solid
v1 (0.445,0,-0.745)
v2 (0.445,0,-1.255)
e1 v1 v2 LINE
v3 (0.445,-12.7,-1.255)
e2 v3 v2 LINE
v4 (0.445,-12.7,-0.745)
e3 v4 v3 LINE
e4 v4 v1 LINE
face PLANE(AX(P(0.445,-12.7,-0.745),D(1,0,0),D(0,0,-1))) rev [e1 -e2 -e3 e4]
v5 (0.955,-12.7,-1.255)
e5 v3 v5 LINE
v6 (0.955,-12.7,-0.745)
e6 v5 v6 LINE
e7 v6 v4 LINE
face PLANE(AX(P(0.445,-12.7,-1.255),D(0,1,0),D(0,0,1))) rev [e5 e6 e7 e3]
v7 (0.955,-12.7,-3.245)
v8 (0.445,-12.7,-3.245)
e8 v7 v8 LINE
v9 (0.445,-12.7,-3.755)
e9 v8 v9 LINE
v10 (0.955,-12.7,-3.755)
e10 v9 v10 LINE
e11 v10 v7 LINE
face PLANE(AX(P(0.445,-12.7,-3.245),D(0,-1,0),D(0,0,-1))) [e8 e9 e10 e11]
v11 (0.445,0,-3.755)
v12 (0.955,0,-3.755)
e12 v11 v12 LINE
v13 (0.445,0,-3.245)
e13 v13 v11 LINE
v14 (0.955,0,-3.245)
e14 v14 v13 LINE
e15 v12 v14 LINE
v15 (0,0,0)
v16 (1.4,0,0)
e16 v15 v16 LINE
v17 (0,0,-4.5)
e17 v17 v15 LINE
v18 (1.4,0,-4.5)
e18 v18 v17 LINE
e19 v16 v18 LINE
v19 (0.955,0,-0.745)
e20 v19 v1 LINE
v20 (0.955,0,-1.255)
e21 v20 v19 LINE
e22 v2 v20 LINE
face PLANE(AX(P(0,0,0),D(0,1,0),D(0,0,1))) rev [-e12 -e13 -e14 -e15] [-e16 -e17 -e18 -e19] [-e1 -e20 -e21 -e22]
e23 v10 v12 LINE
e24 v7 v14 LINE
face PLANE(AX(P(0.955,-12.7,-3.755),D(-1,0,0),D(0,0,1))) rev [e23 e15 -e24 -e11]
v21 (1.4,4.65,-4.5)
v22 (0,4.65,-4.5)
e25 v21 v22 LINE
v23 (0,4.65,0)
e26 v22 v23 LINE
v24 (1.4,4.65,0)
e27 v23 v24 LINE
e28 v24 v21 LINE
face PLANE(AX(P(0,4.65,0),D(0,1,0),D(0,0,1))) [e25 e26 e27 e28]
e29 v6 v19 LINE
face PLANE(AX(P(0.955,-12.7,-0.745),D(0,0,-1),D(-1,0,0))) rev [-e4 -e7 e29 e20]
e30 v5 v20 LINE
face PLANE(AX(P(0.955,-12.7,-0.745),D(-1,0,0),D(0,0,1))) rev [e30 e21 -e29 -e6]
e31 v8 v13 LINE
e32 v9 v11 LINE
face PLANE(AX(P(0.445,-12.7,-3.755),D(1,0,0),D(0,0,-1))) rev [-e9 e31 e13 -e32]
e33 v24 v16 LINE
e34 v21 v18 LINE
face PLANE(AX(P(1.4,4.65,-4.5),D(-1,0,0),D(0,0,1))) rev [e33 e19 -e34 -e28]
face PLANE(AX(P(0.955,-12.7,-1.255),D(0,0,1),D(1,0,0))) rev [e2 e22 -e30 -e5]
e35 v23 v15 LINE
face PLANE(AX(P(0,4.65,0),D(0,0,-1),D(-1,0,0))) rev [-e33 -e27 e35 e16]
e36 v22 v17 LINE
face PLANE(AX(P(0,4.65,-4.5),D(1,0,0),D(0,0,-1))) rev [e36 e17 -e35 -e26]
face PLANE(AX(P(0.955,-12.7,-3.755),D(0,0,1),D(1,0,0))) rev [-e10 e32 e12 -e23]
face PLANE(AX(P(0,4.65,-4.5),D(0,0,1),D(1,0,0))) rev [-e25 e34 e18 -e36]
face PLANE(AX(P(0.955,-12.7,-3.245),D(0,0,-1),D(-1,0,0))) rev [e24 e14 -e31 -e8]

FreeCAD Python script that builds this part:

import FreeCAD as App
import Part
import Sketcher
from FreeCAD import Vector

doc = App.newDocument("Part")
body = doc.addObject("PartDesign::Body", "Body")

# Sketch on XZ plane
sketch1 = doc.addObject("Sketcher::SketchObject", "Sketch")
body.addObject(sketch1)
sketch1.AttachmentSupport = (doc.XZ_Plane, [""])
sketch1.MapMode = "FlatFace"
sketch1.addGeometry([
    Part.LineSegment(Vector(0, -4.5, 0), Vector(0, 0, 0)),
    Part.LineSegment(Vector(0, 0, 0), Vector(1.4, 0, 0)),
    Part.LineSegment(Vector(1.4, 0, 0), Vector(1.4, -4.5, 0)),
    Part.LineSegment(Vector(1.4, -4.5, 0), Vector(0, -4.5, 0)),
], False)
sketch1.addConstraint([
    Sketcher.Constraint("Coincident", 0, 2, 1, 1),
    Sketcher.Constraint("Coincident", 1, 2, 2, 1),
    Sketcher.Constraint("Coincident", 2, 2, 3, 1),
    Sketcher.Constraint("Coincident", 3, 2, 0, 1),
    Sketcher.Constraint("Vertical", 0),
    Sketcher.Constraint("Horizontal", 1),
    Sketcher.Constraint("Vertical", 2),
    Sketcher.Constraint("Horizontal", 3),
    Sketcher.Constraint("Coincident", 0, 2, -1, 1),
    Sketcher.Constraint("DistanceX", 1, 1, 1, 2, 1.4),
    Sketcher.Constraint("DistanceY", 0, 1, 0, 2, 4.5),
])
pad1 = doc.addObject("PartDesign::Pad", "Pad")
body.addObject(pad1)
pad1.Profile = sketch1
pad1.Length = 4.65
pad1.Reversed = True

# Sketch on XZ plane
sketch2 = doc.addObject("Sketcher::SketchObject", "Sketch001")
body.addObject(sketch2)
sketch2.AttachmentSupport = (doc.XZ_Plane, [""])
sketch2.MapMode = "FlatFace"
sketch2.addGeometry([
    Part.LineSegment(Vector(0.445, -0.745, 0), Vector(0.445, -1.255, 0)),  # 0
    Part.LineSegment(Vector(0.445, -1.255, 0), Vector(0.955, -1.255, 0)),  # 1
    Part.LineSegment(Vector(0.955, -1.255, 0), Vector(0.955, -0.745, 0)),  # 2
    Part.LineSegment(Vector(0.955, -0.745, 0), Vector(0.445, -0.745, 0)),  # 3
    Part.LineSegment(Vector(0.445, -3.245, 0), Vector(0.445, -3.755, 0)),  # 4
    Part.LineSegment(Vector(0.445, -3.755, 0), Vector(0.955, -3.755, 0)),  # 5
    Part.LineSegment(Vector(0.955, -3.755, 0), Vector(0.955, -3.245, 0)),  # 6
    Part.LineSegment(Vector(0.955, -3.245, 0), Vector(0.445, -3.245, 0)),  # 7
], False)
sketch2.addConstraint([
    Sketcher.Constraint("Coincident", 0, 2, 1, 1),
    Sketcher.Constraint("Coincident", 1, 2, 2, 1),
    Sketcher.Constraint("Coincident", 2, 2, 3, 1),
    Sketcher.Constraint("Coincident", 3, 2, 0, 1),
    Sketcher.Constraint("Coincident", 4, 2, 5, 1),
    Sketcher.Constraint("Coincident", 5, 2, 6, 1),
    Sketcher.Constraint("Coincident", 6, 2, 7, 1),
    Sketcher.Constraint("Coincident", 7, 2, 4, 1),
    Sketcher.Constraint("Vertical", 0),
    Sketcher.Constraint("Horizontal", 1),
    Sketcher.Constraint("Vertical", 2),
    Sketcher.Constraint("Horizontal", 3),
    Sketcher.Constraint("Vertical", 4),
    Sketcher.Constraint("Horizontal", 5),
    Sketcher.Constraint("Vertical", 6),
    Sketcher.Constraint("Horizontal", 7),
    Sketcher.Constraint("Vertical", 3, 2, 4, 2),
    Sketcher.Constraint("Vertical", 2, 2, 5, 2),
    Sketcher.Constraint("Equal", 7, 0),
    Sketcher.Constraint("Equal", 2, 4),
    Sketcher.Constraint("DistanceX", 1, 1, 1, 2, 0.51),
    Sketcher.Constraint("DistanceY", 4, 2, 0, 2, 2.5),
    Sketcher.Constraint("DistanceX", -1, 1, 0, 2, 0.445),
    Sketcher.Constraint("DistanceY", 0, 2, -1, 1, 1.255),
])
pad2 = doc.addObject("PartDesign::Pad", "Pad001")
body.addObject(pad2)
pad2.Profile = sketch2
pad2.Length = 12.7

doc.recompute()
